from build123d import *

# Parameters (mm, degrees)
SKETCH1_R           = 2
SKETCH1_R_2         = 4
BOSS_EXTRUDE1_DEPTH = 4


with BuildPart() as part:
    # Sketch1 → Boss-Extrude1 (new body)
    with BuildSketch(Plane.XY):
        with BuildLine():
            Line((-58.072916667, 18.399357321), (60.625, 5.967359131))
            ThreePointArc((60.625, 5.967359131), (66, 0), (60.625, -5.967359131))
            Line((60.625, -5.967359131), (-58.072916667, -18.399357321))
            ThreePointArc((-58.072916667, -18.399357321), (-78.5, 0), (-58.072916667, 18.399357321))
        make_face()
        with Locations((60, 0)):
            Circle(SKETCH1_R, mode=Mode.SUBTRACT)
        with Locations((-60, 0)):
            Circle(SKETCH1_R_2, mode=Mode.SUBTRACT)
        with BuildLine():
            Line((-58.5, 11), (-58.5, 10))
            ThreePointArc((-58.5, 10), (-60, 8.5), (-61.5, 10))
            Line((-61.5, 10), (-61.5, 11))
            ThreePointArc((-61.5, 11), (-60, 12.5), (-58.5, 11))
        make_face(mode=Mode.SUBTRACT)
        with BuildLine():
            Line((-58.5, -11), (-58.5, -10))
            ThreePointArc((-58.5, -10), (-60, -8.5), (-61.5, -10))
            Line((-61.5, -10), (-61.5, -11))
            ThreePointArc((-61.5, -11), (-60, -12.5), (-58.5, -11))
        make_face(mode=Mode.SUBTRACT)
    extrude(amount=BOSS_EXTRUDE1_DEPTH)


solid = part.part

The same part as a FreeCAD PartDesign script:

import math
import FreeCAD as App
import Part
import Sketcher
from FreeCAD import Vector
Q = App.Units.Quantity

doc = App.newDocument("Part")
body = doc.addObject("PartDesign::Body", "Body")

# Sketch on XY plane
sketch1 = body.newObject("Sketcher::SketchObject", "Sketch")
sketch1.AttachmentSupport = (doc.getObject("XY_Plane"), [""])
sketch1.MapMode = "FlatFace"
sketch1.addGeometry(Part.LineSegment(Vector(60.625, 5.967359, 0), Vector(-58.072917, 18.399357, 0)), False)
sketch1.addGeometry(Part.ArcOfCircle(Part.Circle(Vector(-60, 0, 0), Vector(0, 0, 1), 18.5), math.radians(84.020843), math.radians(275.979157)), False)
sketch1.addGeometry(Part.LineSegment(Vector(-58.072917, -18.399357, 0), Vector(60.625, -5.967359, 0)), False)
sketch1.addGeometry(Part.ArcOfCircle(Part.Circle(Vector(60, 0, 0), Vector(0, 0, 1), 6), math.radians(-84.020843), math.radians(84.020843)), False)
sketch1.addGeometry(Part.ArcOfCircle(Part.Circle(Vector(-60, -11, 0), Vector(0, 0, 1), 1.5), math.radians(180), math.radians(360)), False)
sketch1.addGeometry(Part.LineSegment(Vector(-61.5, -11, 0), Vector(-61.5, -10, 0)), False)
sketch1.addGeometry(Part.ArcOfCircle(Part.Circle(Vector(-60, -10, 0), Vector(0, 0, 1), 1.5), math.radians(0), math.radians(180)), False)
sketch1.addGeometry(Part.LineSegment(Vector(-58.5, -10, 0), Vector(-58.5, -11, 0)), False)
sketch1.addGeometry(Part.Circle(Vector(60, 0, 0), Vector(0, 0, 1), 2), False)
sketch1.addGeometry(Part.Circle(Vector(-60, 0, 0), Vector(0, 0, 1), 4), False)
sketch1.addGeometry(Part.LineSegment(Vector(-58.5, 11, 0), Vector(-58.5, 10, 0)), False)
sketch1.addGeometry(Part.ArcOfCircle(Part.Circle(Vector(-60, 10, 0), Vector(0, 0, 1), 1.5), math.radians(180), math.radians(360)), False)
sketch1.addGeometry(Part.LineSegment(Vector(-61.5, 10, 0), Vector(-61.5, 11, 0)), False)
sketch1.addGeometry(Part.ArcOfCircle(Part.Circle(Vector(-60, 11, 0), Vector(0, 0, 1), 1.5), math.radians(0), math.radians(180)), False)
sketch1.addConstraint(Sketcher.Constraint("Tangent", 0, 2, 1, 1))
sketch1.addConstraint(Sketcher.Constraint("Tangent", 1, 2, 2, 1))
sketch1.addConstraint(Sketcher.Constraint("Tangent", 2, 2, 3, 1))
sketch1.addConstraint(Sketcher.Constraint("Tangent", 3, 2, 0, 1))
sketch1.addConstraint(Sketcher.Constraint("Tangent", 4, 1, 5, 1))
sketch1.addConstraint(Sketcher.Constraint("Tangent", 5, 2, 6, 2))
sketch1.addConstraint(Sketcher.Constraint("Tangent", 6, 1, 7, 1))
sketch1.addConstraint(Sketcher.Constraint("Tangent", 7, 2, 4, 2))
sketch1.addConstraint(Sketcher.Constraint("Tangent", 10, 2, 11, 2))
sketch1.addConstraint(Sketcher.Constraint("Tangent", 11, 1, 12, 1))
sketch1.addConstraint(Sketcher.Constraint("Tangent", 12, 2, 13, 2))
sketch1.addConstraint(Sketcher.Constraint("Tangent", 13, 1, 10, 1))
sketch1.addConstraint(Sketcher.Constraint("Vertical", 5))
sketch1.addConstraint(Sketcher.Constraint("Vertical", 7))
sketch1.addConstraint(Sketcher.Constraint("Vertical", 10))
sketch1.addConstraint(Sketcher.Constraint("Vertical", 12))
sketch1.addConstraint(Sketcher.Constraint("Coincident", 8, 3, 3, 3))
sketch1.addConstraint(Sketcher.Constraint("Coincident", 9, 3, 1, 3))
sketch1.addConstraint(Sketcher.Constraint("Equal", 6, 11))
sketch1.addConstraint(Sketcher.Constraint("Symmetric", 1, 3, 3, 3, -1, 1))
sketch1.addConstraint(Sketcher.Constraint("Symmetric", 6, 3, 11, 3, -1))
sketch1.addConstraint(Sketcher.Constraint("PointOnObject", 1, 3, -1))
sketch1.addConstraint(Sketcher.Constraint("Vertical", 1, 3, 4, 3))
sketch1.addConstraint(Sketcher.Constraint("Equal", 7, 10))
sketch1.addConstraint(Sketcher.Constraint("Diameter", 8, Q("4 mm")))
sketch1.addConstraint(Sketcher.Constraint("Diameter", 9, Q("8 mm")))
sketch1.addConstraint(Sketcher.Constraint("Radius", 3, Q("6 mm")))
sketch1.addConstraint(Sketcher.Constraint("Radius", 1, Q("18.5 mm")))
sketch1.addConstraint(Sketcher.Constraint("Radius", 4, Q("1.5 mm")))
sketch1.addConstraint(Sketcher.Constraint("DistanceY", 5, 1, 5, 2, Q("1 mm")))
sketch1.addConstraint(Sketcher.Constraint("DistanceX", 1, 3, -1, 1, Q("60 mm")))
sketch1.addConstraint(Sketcher.Constraint("DistanceY", 4, 3, -1, 1, Q("11 mm")))
pad1 = body.newObject("PartDesign::Pad", "Pad")
pad1.Profile = sketch1
pad1.Length = 4

doc.recompute()
